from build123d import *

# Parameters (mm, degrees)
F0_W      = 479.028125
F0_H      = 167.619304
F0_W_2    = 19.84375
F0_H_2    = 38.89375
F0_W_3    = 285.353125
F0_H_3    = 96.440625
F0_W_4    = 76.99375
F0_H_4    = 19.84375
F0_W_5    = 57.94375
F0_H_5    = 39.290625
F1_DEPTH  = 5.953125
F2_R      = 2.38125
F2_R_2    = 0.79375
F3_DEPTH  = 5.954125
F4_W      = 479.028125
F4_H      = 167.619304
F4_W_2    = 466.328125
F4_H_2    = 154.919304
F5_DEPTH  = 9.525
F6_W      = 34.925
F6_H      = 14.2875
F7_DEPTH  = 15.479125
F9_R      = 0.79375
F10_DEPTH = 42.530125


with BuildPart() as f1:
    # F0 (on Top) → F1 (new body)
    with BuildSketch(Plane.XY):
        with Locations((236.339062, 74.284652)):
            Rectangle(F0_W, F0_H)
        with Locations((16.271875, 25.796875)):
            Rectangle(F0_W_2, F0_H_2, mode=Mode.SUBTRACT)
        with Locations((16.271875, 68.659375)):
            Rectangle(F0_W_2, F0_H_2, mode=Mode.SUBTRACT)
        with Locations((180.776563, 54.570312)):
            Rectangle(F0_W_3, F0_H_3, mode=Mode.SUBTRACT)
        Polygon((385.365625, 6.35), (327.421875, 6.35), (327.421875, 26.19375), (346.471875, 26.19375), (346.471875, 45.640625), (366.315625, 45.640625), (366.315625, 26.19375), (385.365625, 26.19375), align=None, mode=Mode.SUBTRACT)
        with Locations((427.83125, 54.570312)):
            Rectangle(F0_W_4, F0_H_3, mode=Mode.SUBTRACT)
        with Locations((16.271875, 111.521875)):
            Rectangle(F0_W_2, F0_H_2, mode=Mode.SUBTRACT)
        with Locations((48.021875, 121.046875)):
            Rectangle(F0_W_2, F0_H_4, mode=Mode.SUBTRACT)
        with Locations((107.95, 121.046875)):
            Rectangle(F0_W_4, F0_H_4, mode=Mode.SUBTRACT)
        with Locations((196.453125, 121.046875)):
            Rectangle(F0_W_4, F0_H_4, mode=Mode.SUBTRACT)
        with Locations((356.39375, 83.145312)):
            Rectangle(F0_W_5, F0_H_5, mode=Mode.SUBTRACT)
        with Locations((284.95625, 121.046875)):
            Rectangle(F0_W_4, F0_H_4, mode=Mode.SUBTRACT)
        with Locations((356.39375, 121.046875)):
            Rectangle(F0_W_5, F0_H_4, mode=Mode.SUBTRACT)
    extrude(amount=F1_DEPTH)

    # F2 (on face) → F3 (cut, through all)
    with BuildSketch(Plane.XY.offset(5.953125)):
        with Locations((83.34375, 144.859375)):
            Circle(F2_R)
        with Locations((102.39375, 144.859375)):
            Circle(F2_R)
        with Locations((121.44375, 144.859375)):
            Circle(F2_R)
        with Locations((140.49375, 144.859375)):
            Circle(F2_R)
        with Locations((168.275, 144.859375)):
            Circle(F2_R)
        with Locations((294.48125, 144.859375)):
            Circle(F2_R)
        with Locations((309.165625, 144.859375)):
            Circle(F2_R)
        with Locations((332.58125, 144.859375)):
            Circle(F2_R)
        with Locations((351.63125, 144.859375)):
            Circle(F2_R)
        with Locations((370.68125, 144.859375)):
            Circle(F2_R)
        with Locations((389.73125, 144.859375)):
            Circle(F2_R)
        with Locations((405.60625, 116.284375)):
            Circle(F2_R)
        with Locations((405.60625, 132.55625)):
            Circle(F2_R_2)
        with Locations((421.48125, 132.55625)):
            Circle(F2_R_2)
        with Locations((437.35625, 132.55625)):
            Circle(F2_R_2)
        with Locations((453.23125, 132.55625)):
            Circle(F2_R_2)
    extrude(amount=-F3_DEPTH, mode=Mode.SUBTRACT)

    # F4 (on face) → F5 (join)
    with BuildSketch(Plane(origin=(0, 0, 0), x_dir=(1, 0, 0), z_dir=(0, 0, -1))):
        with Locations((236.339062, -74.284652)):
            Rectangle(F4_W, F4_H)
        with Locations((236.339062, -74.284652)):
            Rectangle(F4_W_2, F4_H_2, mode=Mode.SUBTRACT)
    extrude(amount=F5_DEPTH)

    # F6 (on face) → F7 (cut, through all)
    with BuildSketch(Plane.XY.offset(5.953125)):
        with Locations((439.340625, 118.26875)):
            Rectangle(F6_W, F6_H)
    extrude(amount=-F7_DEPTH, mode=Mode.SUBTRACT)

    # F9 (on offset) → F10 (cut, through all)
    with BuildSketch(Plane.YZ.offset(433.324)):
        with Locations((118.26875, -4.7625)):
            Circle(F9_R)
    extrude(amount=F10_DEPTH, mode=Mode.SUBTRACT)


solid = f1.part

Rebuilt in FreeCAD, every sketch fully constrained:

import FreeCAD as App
import Part
import Sketcher
Q = App.Units.Quantity


def add_polygon(sketch, points):
    """Adds a closed chain of lines whose ends are joined by coincident constraints."""
    first, n = sketch.GeometryCount, len(points)
    for a, b in zip(points, points[1:] + points[:1]):
        sketch.addGeometry(Part.LineSegment(App.Vector(*a, 0), App.Vector(*b, 0)), False)
    for i in range(n):
        sketch.addConstraint(Sketcher.Constraint("Coincident", first + i, 2, first + (i + 1) % n, 1))

doc = App.newDocument("Part")
body = doc.addObject("PartDesign::Body", "Body")

# Sketch on XY plane
sketch1 = body.newObject("Sketcher::SketchObject", "Sketch")
sketch1.AttachmentSupport = (doc.getObject("XY_Plane"), [""])
sketch1.MapMode = "FlatFace"
add_polygon(sketch1, [(-3, 158), (-3, -10), (476, -10), (476, 158)])  # lines 0-3
add_polygon(sketch1, [(26, 6), (6, 6), (6, 45), (26, 45)])  # lines 4-7
add_polygon(sketch1, [(323, 6), (38, 6), (38, 103), (323, 103)])  # lines 8-11
add_polygon(sketch1, [(385, 26), (385, 6), (327, 6), (327, 26), (346, 26), (346, 46), (366, 46), (366, 26)])  # lines 12-19
add_polygon(sketch1, [(466, 6), (389, 6), (389, 103), (466, 103)])  # lines 20-23
add_polygon(sketch1, [(26, 49), (6, 49), (6, 88), (26, 88)])  # lines 24-27
add_polygon(sketch1, [(26, 92), (6, 92), (6, 131), (26, 131)])  # lines 28-31
add_polygon(sketch1, [(58, 111), (38, 111), (38, 131), (58, 131)])  # lines 32-35
add_polygon(sketch1, [(146, 111), (69, 111), (69, 131), (146, 131)])  # lines 36-39
add_polygon(sketch1, [(235, 111), (158, 111), (158, 131), (235, 131)])  # lines 40-43
add_polygon(sketch1, [(385, 63), (327, 63), (327, 103), (385, 103)])  # lines 44-47
add_polygon(sketch1, [(323, 111), (246, 111), (246, 131), (323, 131)])  # lines 48-51
add_polygon(sketch1, [(385, 111), (327, 111), (327, 131), (385, 131)])  # lines 52-55
sketch1.addConstraint([
    Sketcher.Constraint("Vertical", 0),
    Sketcher.Constraint("Horizontal", 1),
    Sketcher.Constraint("Vertical", 2),
    Sketcher.Constraint("Horizontal", 3),
    Sketcher.Constraint("Horizontal", 4),
    Sketcher.Constraint("Vertical", 5),
    Sketcher.Constraint("Horizontal", 6),
    Sketcher.Constraint("Vertical", 7),
    Sketcher.Constraint("Horizontal", 8),
    Sketcher.Constraint("Vertical", 9),
    Sketcher.Constraint("Horizontal", 10),
    Sketcher.Constraint("Vertical", 11),
    Sketcher.Constraint("Vertical", 12),
    Sketcher.Constraint("Horizontal", 13),
    Sketcher.Constraint("Vertical", 14),
    Sketcher.Constraint("Horizontal", 15),
    Sketcher.Constraint("Vertical", 16),
    Sketcher.Constraint("Horizontal", 17),
    Sketcher.Constraint("Vertical", 18),
    Sketcher.Constraint("Horizontal", 19),
    Sketcher.Constraint("Horizontal", 20),
    Sketcher.Constraint("Vertical", 21),
    Sketcher.Constraint("Horizontal", 22),
    Sketcher.Constraint("Vertical", 23),
    Sketcher.Constraint("Horizontal", 24),
    Sketcher.Constraint("Vertical", 25),
    Sketcher.Constraint("Horizontal", 26),
    Sketcher.Constraint("Vertical", 27),
    Sketcher.Constraint("Horizontal", 28),
    Sketcher.Constraint("Vertical", 29),
    Sketcher.Constraint("Horizontal", 30),
    Sketcher.Constraint("Vertical", 31),
    Sketcher.Constraint("Horizontal", 32),
    Sketcher.Constraint("Vertical", 33),
    Sketcher.Constraint("Horizontal", 34),
    Sketcher.Constraint("Vertical", 35),
    Sketcher.Constraint("Horizontal", 36),
    Sketcher.Constraint("Vertical", 37),
    Sketcher.Constraint("Horizontal", 38),
    Sketcher.Constraint("Vertical", 39),
    Sketcher.Constraint("Horizontal", 40),
    Sketcher.Constraint("Vertical", 41),
    Sketcher.Constraint("Horizontal", 42),
    Sketcher.Constraint("Vertical", 43),
    Sketcher.Constraint("Horizontal", 44),
    Sketcher.Constraint("Vertical", 45),
    Sketcher.Constraint("Horizontal", 46),
    Sketcher.Constraint("Vertical", 47),
    Sketcher.Constraint("Horizontal", 48),
    Sketcher.Constraint("Vertical", 49),
    Sketcher.Constraint("Horizontal", 50),
    Sketcher.Constraint("Vertical", 51),
    Sketcher.Constraint("Horizontal", 52),
    Sketcher.Constraint("Vertical", 53),
    Sketcher.Constraint("Horizontal", 54),
    Sketcher.Constraint("Vertical", 55),
    Sketcher.Constraint("Horizontal", 7, 2, 8, 2),
    Sketcher.Constraint("Horizontal", 11, 2, 12, 2),
    Sketcher.Constraint("Horizontal", 15, 2, 18, 2),
    Sketcher.Constraint("Horizontal", 13, 2, 20, 2),
    Sketcher.Constraint("Horizontal", 10, 2, 21, 2),
    Sketcher.Constraint("Horizontal", 30, 2, 33, 2),
    Sketcher.Constraint("Horizontal", 35, 2, 36, 2),
    Sketcher.Constraint("Horizontal", 34, 2, 37, 2),
    Sketcher.Constraint("Horizontal", 39, 2, 40, 2),
    Sketcher.Constraint("Horizontal", 38, 2, 41, 2),
    Sketcher.Constraint("Horizontal", 22, 2, 45, 2),
    Sketcher.Constraint("Horizontal", 43, 2, 48, 2),
    Sketcher.Constraint("Horizontal", 42, 2, 49, 2),
    Sketcher.Constraint("Horizontal", 51, 2, 52, 2),
    Sketcher.Constraint("Horizontal", 50, 2, 53, 2),
    Sketcher.Constraint("Vertical", 5, 2, 24, 2),
    Sketcher.Constraint("Vertical", 7, 2, 26, 2),
    Sketcher.Constraint("Vertical", 25, 2, 28, 2),
    Sketcher.Constraint("Vertical", 27, 2, 30, 2),
    Sketcher.Constraint("Vertical", 9, 2, 32, 2),
    Sketcher.Constraint("Vertical", 14, 2, 44, 2),
    Sketcher.Constraint("Vertical", 19, 2, 46, 2),
    Sketcher.Constraint("Vertical", 11, 2, 50, 2),
    Sketcher.Constraint("Vertical", 45, 2, 52, 2),
    Sketcher.Constraint("Vertical", 47, 2, 54, 2),
    Sketcher.Constraint("Equal", 6, 17),
    Sketcher.Constraint("Equal", 15, 19),
    Sketcher.Constraint("Equal", 30, 32),
    Sketcher.Constraint("Equal", 22, 36),
    Sketcher.Constraint("Equal", 38, 40),
    Sketcher.Constraint("Equal", 42, 48),
    Sketcher.Constraint("Equal", 34, 12),
    Sketcher.Constraint("Equal", 7, 25),
    Sketcher.Constraint("Equal", 27, 29),
    Sketcher.Constraint("Equal", 14, 33),
    Sketcher.Constraint("DistanceX", 10, 2, 2, 2, Q("6 in")),
    Sketcher.Constraint("DistanceX", 15, 1, 15, 2, Q("0.75 in")),
    Sketcher.Constraint("DistanceX", -1, 1, 8, 2, Q("1.5 in")),
    Sketcher.Constraint("DistanceY", -1, 1, 44, 2, Q("2.5 in")),
    Sketcher.Constraint("DistanceX", 1, 1, 1, 2, Q("18.859375 in")),
    Sketcher.Constraint("DistanceX", 4, 2, 4, 1, Q("0.78125 in")),
    Sketcher.Constraint("DistanceX", 8, 2, 8, 1, Q("11.234375 in")),
    Sketcher.Constraint("DistanceX", 20, 2, 20, 1, Q("3.03125 in")),
    Sketcher.Constraint("DistanceY", 5, 1, 5, 2, Q("1.53125 in")),
    Sketcher.Constraint("DistanceY", 9, 1, 9, 2, Q("3.796875 in")),
    Sketcher.Constraint("DistanceY", 16, 1, 16, 2, Q("0.765625 in")),
    Sketcher.Constraint("DistanceY", 45, 1, 45, 2, Q("1.546875 in")),
    Sketcher.Constraint("DistanceX", -1, 1, 4, 2, Q("0.25 in")),
    Sketcher.Constraint("DistanceX", -1, 1, 42, 2, Q("9.25 in")),
    Sketcher.Constraint("DistanceY", 0, 2, -1, 1, Q("0.375 in")),
    Sketcher.Constraint("DistanceX", -1, 1, 12, 2, Q("15.171875 in")),
    Sketcher.Constraint("DistanceX", -1, 1, 20, 2, Q("15.328125 in")),
    Sketcher.Constraint("DistanceY", -1, 1, 24, 2, Q("1.9375 in")),
    Sketcher.Constraint("DistanceY", -1, 1, 28, 2, Q("3.625 in")),
    Sketcher.Constraint("DistanceX", -1, 1, 36, 2, Q("2.734375 in")),
    Sketcher.Constraint("DistanceY", 0, 2, 0, 1, Q("167.619304 mm")),
])
pad1 = body.newObject("PartDesign::Pad", "Pad")
pad1.Profile = sketch1
pad1.Length = Q("0.234375 in")

# Sketch on XY plane
sketch2 = body.newObject("Sketcher::SketchObject", "Sketch001")
sketch2.AttachmentSupport = (doc.getObject("XY_Plane"), [""])
sketch2.MapMode = "FlatFace"
sketch2.AttachmentOffset = App.Placement(App.Vector(0, 0, 0.234375 * 25.4), App.Rotation())
sketch2.addGeometry([
    Part.Circle(App.Vector(83.3, 144.9, 0), App.Vector(0, 0, 1), 2.4),  # 0
    Part.Circle(App.Vector(102.4, 144.9, 0), App.Vector(0, 0, 1), 2.4),  # 1
    Part.Circle(App.Vector(121.4, 144.9, 0), App.Vector(0, 0, 1), 2.4),  # 2
    Part.Circle(App.Vector(140.5, 144.9, 0), App.Vector(0, 0, 1), 2.4),  # 3
    Part.Circle(App.Vector(168.3, 144.9, 0), App.Vector(0, 0, 1), 2.4),  # 4
    Part.Circle(App.Vector(294.5, 144.9, 0), App.Vector(0, 0, 1), 2.4),  # 5
    Part.Circle(App.Vector(309.2, 144.9, 0), App.Vector(0, 0, 1), 2.4),  # 6
    Part.Circle(App.Vector(332.6, 144.9, 0), App.Vector(0, 0, 1), 2.4),  # 7
    Part.Circle(App.Vector(351.6, 144.9, 0), App.Vector(0, 0, 1), 2.4),  # 8
    Part.Circle(App.Vector(370.7, 144.9, 0), App.Vector(0, 0, 1), 2.4),  # 9
    Part.Circle(App.Vector(389.7, 144.9, 0), App.Vector(0, 0, 1), 2.4),  # 10
    Part.Circle(App.Vector(405.6, 116.3, 0), App.Vector(0, 0, 1), 2.4),  # 11
    Part.Circle(App.Vector(405.6, 132.6, 0), App.Vector(0, 0, 1), 0.8),  # 12
    Part.Circle(App.Vector(421.5, 132.6, 0), App.Vector(0, 0, 1), 0.8),  # 13
    Part.Circle(App.Vector(437.4, 132.6, 0), App.Vector(0, 0, 1), 0.8),  # 14
    Part.Circle(App.Vector(453.2, 132.6, 0), App.Vector(0, 0, 1), 0.8),  # 15
], False)
sketch2.addConstraint([
    Sketcher.Constraint("Equal", 0, 1),
    Sketcher.Constraint("Equal", 1, 2),
    Sketcher.Constraint("Equal", 2, 3),
    Sketcher.Constraint("Equal", 3, 4),
    Sketcher.Constraint("Equal", 4, 5),
    Sketcher.Constraint("Equal", 5, 6),
    Sketcher.Constraint("Equal", 6, 7),
    Sketcher.Constraint("Equal", 7, 8),
    Sketcher.Constraint("Equal", 8, 9),
    Sketcher.Constraint("Equal", 9, 10),
    Sketcher.Constraint("Equal", 10, 11),
    Sketcher.Constraint("Equal", 12, 13),
    Sketcher.Constraint("Equal", 13, 14),
    Sketcher.Constraint("Equal", 14, 15),
    Sketcher.Constraint("Horizontal", 0, 3, 1, 3),
    Sketcher.Constraint("Horizontal", 1, 3, 2, 3),
    Sketcher.Constraint("Horizontal", 2, 3, 3, 3),
    Sketcher.Constraint("Horizontal", 3, 3, 4, 3),
    Sketcher.Constraint("Horizontal", 4, 3, 5, 3),
    Sketcher.Constraint("Horizontal", 5, 3, 6, 3),
    Sketcher.Constraint("Horizontal", 6, 3, 7, 3),
    Sketcher.Constraint("Horizontal", 7, 3, 8, 3),
    Sketcher.Constraint("Horizontal", 8, 3, 9, 3),
    Sketcher.Constraint("Horizontal", 9, 3, 10, 3),
    Sketcher.Constraint("Horizontal", 12, 3, 13, 3),
    Sketcher.Constraint("Horizontal", 13, 3, 14, 3),
    Sketcher.Constraint("Horizontal", 14, 3, 15, 3),
    Sketcher.Constraint("Vertical", 11, 3, 12, 3),
    Sketcher.Constraint("Diameter", 0, Q("0.1875 in")),
    Sketcher.Constraint("Diameter", 12, Q("0.0625 in")),
    Sketcher.Constraint("DistanceX", 5, 3, 9, 3, Q("3 in")),
    Sketcher.Constraint("DistanceX", 9, 3, 13, 3, Q("2 in")),
    Sketcher.Constraint("DistanceX", 0, 3, 2, 3, Q("1.5 in")),
    Sketcher.Constraint("DistanceX", 1, 3, 3, 3, Q("1.5 in")),
    Sketcher.Constraint("DistanceX", 5, 3, 7, 3, Q("1.5 in")),
    Sketcher.Constraint("DistanceX", 8, 3, 10, 3, Q("1.5 in")),
    Sketcher.Constraint("DistanceX", 10, 3, 15, 3, Q("2.5 in")),
    Sketcher.Constraint("DistanceX", 0, 3, 1, 3, Q("0.75 in")),
    Sketcher.Constraint("DistanceX", 7, 3, 8, 3, Q("0.75 in")),
    Sketcher.Constraint("DistanceX", 12, 3, 14, 3, Q("1.25 in")),
    Sketcher.Constraint("DistanceX", -1, 1, 0, 3, Q("3.28125 in")),
    Sketcher.Constraint("DistanceY", -1, 1, 0, 3, Q("5.703125 in")),
    Sketcher.Constraint("DistanceX", -1, 1, 4, 3, Q("6.625 in")),
    Sketcher.Constraint("DistanceX", -1, 1, 5, 3, Q("11.59375 in")),
    Sketcher.Constraint("DistanceX", -1, 1, 6, 3, Q("12.171875 in")),
    Sketcher.Constraint("DistanceX", -1, 1, 11, 3, Q("15.96875 in")),
    Sketcher.Constraint("DistanceY", -1, 1, 11, 3, Q("4.578125 in")),
    Sketcher.Constraint("DistanceY", -1, 1, 12, 3, Q("5.21875 in")),
])
pocket1 = body.newObject("PartDesign::Pocket", "Pocket")
pocket1.Profile = sketch2
pocket1.Type = "ThroughAll"

# Sketch on XY plane
sketch3 = body.newObject("Sketcher::SketchObject", "Sketch002")
sketch3.AttachmentSupport = (doc.getObject("XY_Plane"), [""])
sketch3.MapMode = "FlatFace"
add_polygon(sketch3, [(-3, -10), (-3, 158), (476, 158), (476, -10)])  # lines 0-3
add_polygon(sketch3, [(470, 152), (3, 152), (3, -3), (470, -3)])  # lines 4-7
sketch3.addConstraint([
    Sketcher.Constraint("Vertical", 0),
    Sketcher.Constraint("Horizontal", 1),
    Sketcher.Constraint("Vertical", 2),
    Sketcher.Constraint("Horizontal", 3),
    Sketcher.Constraint("Horizontal", 4),
    Sketcher.Constraint("Vertical", 5),
    Sketcher.Constraint("Horizontal", 6),
    Sketcher.Constraint("Vertical", 7),
    Sketcher.Constraint("DistanceX", 1, 1, 1, 2, Q("18.859375 in")),
    Sketcher.Constraint("DistanceX", 4, 2, 4, 1, Q("18.359375 in")),
    Sketcher.Constraint("DistanceX", 0, 2, 4, 2, Q("0.25 in")),
    Sketcher.Constraint("DistanceY", 4, 2, 0, 2, Q("0.25 in")),
    Sketcher.Constraint("DistanceY", 3, 2, 5, 2, Q("0.25 in")),
    Sketcher.Constraint("DistanceX", 0, 2, -1, 1, Q("0.125 in")),
    Sketcher.Constraint("DistanceY", 2, 2, -1, 1, Q("0.375 in")),
    Sketcher.Constraint("DistanceY", 0, 1, 0, 2, Q("167.619304 mm")),
])
pad2 = body.newObject("PartDesign::Pad", "Pad001")
pad2.Profile = sketch3
pad2.Length = Q("0.375 in")
pad2.Reversed = True

# Sketch on XY plane
sketch4 = body.newObject("Sketcher::SketchObject", "Sketch003")
sketch4.AttachmentSupport = (doc.getObject("XY_Plane"), [""])
sketch4.MapMode = "FlatFace"
sketch4.AttachmentOffset = App.Placement(App.Vector(0, 0, 0.234375 * 25.4), App.Rotation())
add_polygon(sketch4, [(422, 125), (422, 111), (457, 111), (457, 125)])  # lines 0-3
sketch4.addConstraint([
    Sketcher.Constraint("Vertical", 0),
    Sketcher.Constraint("Horizontal", 1),
    Sketcher.Constraint("Vertical", 2),
    Sketcher.Constraint("Horizontal", 3),
    Sketcher.Constraint("DistanceX", 1, 1, 1, 2, Q("1.375 in")),
    Sketcher.Constraint("DistanceY", 0, 2, 0, 1, Q("0.5625 in")),
    Sketcher.Constraint("DistanceX", -1, 1, 0, 2, Q("16.609375 in")),
    Sketcher.Constraint("DistanceY", -1, 1, 0, 2, Q("4.375 in")),
])
pocket2 = body.newObject("PartDesign::Pocket", "Pocket001")
pocket2.Profile = sketch4
pocket2.Type = "ThroughAll"

# Sketch on YZ plane
sketch5 = body.newObject("Sketcher::SketchObject", "Sketch004")
sketch5.AttachmentSupport = (doc.getObject("YZ_Plane"), [""])
sketch5.MapMode = "FlatFace"
sketch5.AttachmentOffset = App.Placement(App.Vector(0, 0, 17.06 * 25.4), App.Rotation())
sketch5.addGeometry(Part.Circle(App.Vector(118.3, -4.8, 0), App.Vector(0, 0, 1), 0.8), False)
sketch5.addConstraint([
    Sketcher.Constraint("Diameter", 0, Q("0.0625 in")),
    Sketcher.Constraint("DistanceX", -1, 1, 0, 3, Q("4.65625 in")),
    Sketcher.Constraint("DistanceY", 0, 3, -1, 1, Q("0.1875 in")),
])
pocket3 = body.newObject("PartDesign::Pocket", "Pocket002")
pocket3.Profile = sketch5
pocket3.Type = "ThroughAll"
pocket3.Reversed = True

doc.recompute()
